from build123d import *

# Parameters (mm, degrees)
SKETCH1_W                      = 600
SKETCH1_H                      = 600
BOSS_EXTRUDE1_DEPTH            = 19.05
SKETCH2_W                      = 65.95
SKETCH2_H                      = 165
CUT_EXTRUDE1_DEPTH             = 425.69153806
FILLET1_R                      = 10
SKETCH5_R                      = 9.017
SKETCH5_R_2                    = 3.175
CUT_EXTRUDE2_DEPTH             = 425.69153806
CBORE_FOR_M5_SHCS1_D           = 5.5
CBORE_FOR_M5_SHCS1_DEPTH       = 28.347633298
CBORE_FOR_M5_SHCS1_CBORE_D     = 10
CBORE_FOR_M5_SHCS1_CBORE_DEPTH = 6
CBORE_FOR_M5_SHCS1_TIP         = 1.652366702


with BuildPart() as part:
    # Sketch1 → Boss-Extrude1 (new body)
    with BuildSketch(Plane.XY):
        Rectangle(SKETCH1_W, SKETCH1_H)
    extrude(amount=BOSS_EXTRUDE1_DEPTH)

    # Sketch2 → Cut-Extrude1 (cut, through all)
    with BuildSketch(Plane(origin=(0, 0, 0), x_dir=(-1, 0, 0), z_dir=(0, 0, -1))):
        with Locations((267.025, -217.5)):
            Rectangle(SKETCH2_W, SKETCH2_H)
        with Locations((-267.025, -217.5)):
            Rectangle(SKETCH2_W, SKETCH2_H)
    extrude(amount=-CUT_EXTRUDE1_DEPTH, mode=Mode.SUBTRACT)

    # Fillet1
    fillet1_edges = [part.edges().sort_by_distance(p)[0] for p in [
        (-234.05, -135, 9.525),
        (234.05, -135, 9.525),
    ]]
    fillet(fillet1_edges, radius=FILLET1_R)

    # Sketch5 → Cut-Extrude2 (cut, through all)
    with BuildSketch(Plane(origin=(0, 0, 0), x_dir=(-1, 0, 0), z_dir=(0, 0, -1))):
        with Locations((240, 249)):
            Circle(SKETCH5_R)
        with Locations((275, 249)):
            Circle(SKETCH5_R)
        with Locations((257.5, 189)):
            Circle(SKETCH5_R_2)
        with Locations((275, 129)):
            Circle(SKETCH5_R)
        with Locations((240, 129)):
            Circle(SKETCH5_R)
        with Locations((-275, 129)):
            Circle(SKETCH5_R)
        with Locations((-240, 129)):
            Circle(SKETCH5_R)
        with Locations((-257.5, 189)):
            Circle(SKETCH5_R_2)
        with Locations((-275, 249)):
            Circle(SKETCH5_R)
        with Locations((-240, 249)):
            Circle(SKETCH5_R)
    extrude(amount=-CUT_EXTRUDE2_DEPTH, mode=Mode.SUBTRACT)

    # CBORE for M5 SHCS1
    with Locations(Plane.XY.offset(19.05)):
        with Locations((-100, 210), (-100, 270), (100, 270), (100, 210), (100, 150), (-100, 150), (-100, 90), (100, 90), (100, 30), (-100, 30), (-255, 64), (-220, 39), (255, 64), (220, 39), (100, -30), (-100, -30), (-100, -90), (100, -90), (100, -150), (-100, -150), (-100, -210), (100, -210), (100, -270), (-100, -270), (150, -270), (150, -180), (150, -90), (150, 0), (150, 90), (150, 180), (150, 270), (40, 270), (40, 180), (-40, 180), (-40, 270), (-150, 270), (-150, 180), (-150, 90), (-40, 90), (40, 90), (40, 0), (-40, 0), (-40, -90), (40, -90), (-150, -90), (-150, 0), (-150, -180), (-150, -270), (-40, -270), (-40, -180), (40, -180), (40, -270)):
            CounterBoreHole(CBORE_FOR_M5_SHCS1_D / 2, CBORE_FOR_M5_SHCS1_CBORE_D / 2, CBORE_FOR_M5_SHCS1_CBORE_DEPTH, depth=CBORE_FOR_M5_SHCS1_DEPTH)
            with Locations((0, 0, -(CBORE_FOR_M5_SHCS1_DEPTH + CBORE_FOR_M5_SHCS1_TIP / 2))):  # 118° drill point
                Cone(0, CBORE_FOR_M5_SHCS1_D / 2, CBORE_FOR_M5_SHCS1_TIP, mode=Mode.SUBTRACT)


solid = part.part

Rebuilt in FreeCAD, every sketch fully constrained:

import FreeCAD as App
import Part
import Sketcher
from FreeCAD import Vector


def edges_at(feature, points):
    """Names of the edges that pass closest to the given points."""
    edges = feature.Shape.Edges
    near = lambda p: min(range(len(edges)), key=lambda i: edges[i].distToShape(Part.Vertex(*p))[0])
    return sorted({f"Edge{near(p) + 1}" for p in points})


def add_polygon(sketch, points):
    """Adds a closed chain of lines whose ends are joined by coincident constraints."""
    first, n = sketch.GeometryCount, len(points)
    for a, b in zip(points, points[1:] + points[:1]):
        sketch.addGeometry(Part.LineSegment(App.Vector(*a, 0), App.Vector(*b, 0)), False)
    for i in range(n):
        sketch.addConstraint(Sketcher.Constraint("Coincident", first + i, 2, first + (i + 1) % n, 1))

doc = App.newDocument("Part")
params = doc.addObject("Spreadsheet::Sheet", "Params")
for row, (alias, value) in enumerate([
    ("sketch1_width", "600 mm"),
    ("pad1_length", "19.05 mm"),
    ("sketch2_height", "165 mm"),
    ("sketch2_width", "65.95 mm"),
    ("fillet_radius", "10 mm"),
    ("sketch3_diameter", "6.35 mm"),
    ("sketch4_diameter", "5.5 mm"),
    ("hole_diameter", "5.5 mm"),
    ("hole_depth", "28.347633 mm"),
    ("hole_cbore_diameter", "10 mm"),
    ("hole_cbore_depth", "6 mm"),
], start=1):
    params.set(f"A{row}", alias)
    params.set(f"B{row}", "=" + value)
    params.setAlias(f"B{row}", alias)

body = doc.addObject("PartDesign::Body", "Body")

# Sketch on XY plane
sketch1 = body.newObject("Sketcher::SketchObject", "Sketch")
sketch1.AttachmentSupport = (doc.getObject("XY_Plane"), [""])
sketch1.MapMode = "FlatFace"
add_polygon(sketch1, [(-300, 300), (-300, -300), (300, -300), (300, 300)])  # lines 0-3
sketch1.addConstraint(Sketcher.Constraint("Vertical", 0))
sketch1.addConstraint(Sketcher.Constraint("Horizontal", 1))
sketch1.addConstraint(Sketcher.Constraint("Vertical", 2))
sketch1.addConstraint(Sketcher.Constraint("Horizontal", 3))
sketch1.addConstraint(Sketcher.Constraint("Symmetric", 0, 2, 2, 2, -1, 1))
sketch1.addConstraint(Sketcher.Constraint("Equal", 3, 0))
sketch1.addConstraint(Sketcher.Constraint("DistanceX", 1, 1, 1, 2, 600.0))
sketch1.setExpression("Constraints[10]", "Params.sketch1_width")
pad1 = body.newObject("PartDesign::Pad", "Pad")
pad1.Profile = sketch1
pad1.setExpression("Length", "Params.pad1_length")

# Sketch on XY plane
sketch2 = body.newObject("Sketcher::SketchObject", "Sketch001")
sketch2.AttachmentSupport = (doc.getObject("XY_Plane"), [""])
sketch2.MapMode = "FlatFace"
add_polygon(sketch2, [(-234, -135), (-234, -300), (-300, -300), (-300, -135)])  # lines 0-3
add_polygon(sketch2, [(300, -135), (300, -300), (234, -300), (234, -135)])  # lines 4-7
sketch2.addConstraint(Sketcher.Constraint("Vertical", 0))
sketch2.addConstraint(Sketcher.Constraint("Horizontal", 1))
sketch2.addConstraint(Sketcher.Constraint("Vertical", 2))
sketch2.addConstraint(Sketcher.Constraint("Horizontal", 3))
sketch2.addConstraint(Sketcher.Constraint("Vertical", 4))
sketch2.addConstraint(Sketcher.Constraint("Horizontal", 5))
sketch2.addConstraint(Sketcher.Constraint("Vertical", 6))
sketch2.addConstraint(Sketcher.Constraint("Horizontal", 7))
sketch2.addConstraint(Sketcher.Constraint("Symmetric", 1, 2, 4, 2, -2))
sketch2.addConstraint(Sketcher.Constraint("Symmetric", 3, 2, 6, 2, -2))
sketch2.addConstraint(Sketcher.Constraint("DistanceY", 0, 2, 0, 1, 165.0))
sketch2.addConstraint(Sketcher.Constraint("DistanceY", 0, 2, -1, 1, 300.0))
sketch2.addConstraint(Sketcher.Constraint("DistanceX", 1, 2, -1, 1, 300.0))
sketch2.addConstraint(Sketcher.Constraint("DistanceX", 1, 2, 1, 1, 65.95))
sketch2.setExpression("Constraints[18]", "Params.sketch2_height")
sketch2.setExpression("Constraints[21]", "Params.sketch2_width")
pocket1 = body.newObject("PartDesign::Pocket", "Pocket")
pocket1.Profile = sketch2
pocket1.Type = "ThroughAll"
pocket1.Reversed = True
doc.recompute()

fillet = body.newObject("PartDesign::Fillet", "Fillet")
fillet.Base = (pocket1, edges_at(pocket1, [(-234.05, -135, 9.525), (234.05, -135, 9.525)]))
fillet.setExpression("Radius", "Params.fillet_radius")

# Sketch on XY plane
sketch3 = body.newObject("Sketcher::SketchObject", "Sketch002")
sketch3.AttachmentSupport = (doc.getObject("XY_Plane"), [""])
sketch3.MapMode = "FlatFace"
sketch3.addGeometry(Part.Circle(Vector(-240, 249, 0), Vector(0, 0, 1), 9), False)
sketch3.addGeometry(Part.Circle(Vector(-275, 249, 0), Vector(0, 0, 1), 9), False)
sketch3.addGeometry(Part.Circle(Vector(-257.5, 189, 0), Vector(0, 0, 1), 3.2), False)
sketch3.addGeometry(Part.Circle(Vector(-275, 129, 0), Vector(0, 0, 1), 9), False)
sketch3.addGeometry(Part.Circle(Vector(-240, 129, 0), Vector(0, 0, 1), 9), False)
sketch3.addGeometry(Part.Circle(Vector(275, 129, 0), Vector(0, 0, 1), 9), False)
sketch3.addGeometry(Part.Circle(Vector(240, 129, 0), Vector(0, 0, 1), 9), False)
sketch3.addGeometry(Part.Circle(Vector(257.5, 189, 0), Vector(0, 0, 1), 3.2), False)
sketch3.addGeometry(Part.Circle(Vector(275, 249, 0), Vector(0, 0, 1), 9), False)
sketch3.addGeometry(Part.Circle(Vector(240, 249, 0), Vector(0, 0, 1), 9), False)
sketch3.addConstraint(Sketcher.Constraint("Equal", 0, 1))
sketch3.addConstraint(Sketcher.Constraint("Equal", 1, 3))
sketch3.addConstraint(Sketcher.Constraint("Equal", 3, 4))
sketch3.addConstraint(Sketcher.Constraint("Equal", 4, 5))
sketch3.addConstraint(Sketcher.Constraint("Equal", 5, 6))
sketch3.addConstraint(Sketcher.Constraint("Equal", 2, 7))
sketch3.addConstraint(Sketcher.Constraint("Equal", 6, 8))
sketch3.addConstraint(Sketcher.Constraint("Equal", 8, 9))
sketch3.addConstraint(Sketcher.Constraint("Symmetric", 3, 3, 5, 3, -2))
sketch3.addConstraint(Sketcher.Constraint("Symmetric", 4, 3, 6, 3, -2))
sketch3.addConstraint(Sketcher.Constraint("Symmetric", 2, 3, 7, 3, -2))
sketch3.addConstraint(Sketcher.Constraint("Symmetric", 1, 3, 8, 3, -2))
sketch3.addConstraint(Sketcher.Constraint("Symmetric", 0, 3, 9, 3, -2))
sketch3.addConstraint(Sketcher.Constraint("Horizontal", 0, 3, 1, 3))
sketch3.addConstraint(Sketcher.Constraint("Horizontal", 3, 3, 4, 3))
sketch3.addConstraint(Sketcher.Constraint("Vertical", 1, 3, 3, 3))
sketch3.addConstraint(Sketcher.Constraint("Vertical", 0, 3, 4, 3))
sketch3.addConstraint(Sketcher.Constraint("Diameter", 2, 6.35))
sketch3.addConstraint(Sketcher.Constraint("Diameter", 0, 18.034))
sketch3.addConstraint(Sketcher.Constraint("DistanceX", 0, 3, -1, 1, 240.0))
sketch3.addConstraint(Sketcher.Constraint("DistanceY", -1, 1, 0, 3, 249.0))
sketch3.addConstraint(Sketcher.Constraint("DistanceX", 1, 3, -1, 1, 275.0))
sketch3.addConstraint(Sketcher.Constraint("DistanceY", -1, 1, 2, 3, 189.0))
sketch3.addConstraint(Sketcher.Constraint("DistanceY", -1, 1, 3, 3, 129.0))
sketch3.addConstraint(Sketcher.Constraint("DistanceX", 2, 3, 7, 3, 515.0))
sketch3.setExpression("Constraints[17]", "Params.sketch3_diameter")
pocket2 = body.newObject("PartDesign::Pocket", "Pocket001")
pocket2.Profile = sketch3
pocket2.Type = "ThroughAll"
pocket2.Reversed = True

# Sketch on XY plane
sketch4 = body.newObject("Sketcher::SketchObject", "Sketch003")
sketch4.AttachmentSupport = (doc.getObject("XY_Plane"), [""])
sketch4.MapMode = "FlatFace"
sketch4.AttachmentOffset = App.Placement(Vector(0, 0, 19.05), App.Rotation())
sketch4.addGeometry(Part.Circle(Vector(-100, 210, 0), Vector(0, 0, 1), 2.8), False)
sketch4.addGeometry(Part.Circle(Vector(-100, 270, 0), Vector(0, 0, 1), 2.8), False)
sketch4.addGeometry(Part.Circle(Vector(100, 270, 0), Vector(0, 0, 1), 2.8), False)
sketch4.addGeometry(Part.Circle(Vector(100, 210, 0), Vector(0, 0, 1), 2.8), False)
sketch4.addGeometry(Part.Circle(Vector(100, 150, 0), Vector(0, 0, 1), 2.8), False)
sketch4.addGeometry(Part.Circle(Vector(-100, 150, 0), Vector(0, 0, 1), 2.8), False)
sketch4.addGeometry(Part.Circle(Vector(-100, 90, 0), Vector(0, 0, 1), 2.8), False)
sketch4.addGeometry(Part.Circle(Vector(100, 90, 0), Vector(0, 0, 1), 2.8), False)
sketch4.addGeometry(Part.Circle(Vector(100, 30, 0), Vector(0, 0, 1), 2.8), False)
sketch4.addGeometry(Part.Circle(Vector(-100, 30, 0), Vector(0, 0, 1), 2.8), False)
sketch4.addGeometry(Part.Circle(Vector(-255, 64, 0), Vector(0, 0, 1), 2.8), False)
sketch4.addGeometry(Part.Circle(Vector(-220, 39, 0), Vector(0, 0, 1), 2.8), False)
sketch4.addGeometry(Part.Circle(Vector(255, 64, 0), Vector(0, 0, 1), 2.8), False)
sketch4.addGeometry(Part.Circle(Vector(220, 39, 0), Vector(0, 0, 1), 2.8), False)
sketch4.addGeometry(Part.Circle(Vector(100, -30, 0), Vector(0, 0, 1), 2.8), False)
sketch4.addGeometry(Part.Circle(Vector(-100, -30, 0), Vector(0, 0, 1), 2.8), False)
sketch4.addGeometry(Part.Circle(Vector(-100, -90, 0), Vector(0, 0, 1), 2.8), False)
sketch4.addGeometry(Part.Circle(Vector(100, -90, 0), Vector(0, 0, 1), 2.8), False)
sketch4.addGeometry(Part.Circle(Vector(100, -150, 0), Vector(0, 0, 1), 2.8), False)
sketch4.addGeometry(Part.Circle(Vector(-100, -150, 0), Vector(0, 0, 1), 2.8), False)
sketch4.addGeometry(Part.Circle(Vector(-100, -210, 0), Vector(0, 0, 1), 2.8), False)
sketch4.addGeometry(Part.Circle(Vector(100, -210, 0), Vector(0, 0, 1), 2.8), False)
sketch4.addGeometry(Part.Circle(Vector(100, -270, 0), Vector(0, 0, 1), 2.8), False)
sketch4.addGeometry(Part.Circle(Vector(-100, -270, 0), Vector(0, 0, 1), 2.8), False)
sketch4.addGeometry(Part.Circle(Vector(150, -270, 0), Vector(0, 0, 1), 2.8), False)
sketch4.addGeometry(Part.Circle(Vector(150, -180, 0), Vector(0, 0, 1), 2.8), False)
sketch4.addGeometry(Part.Circle(Vector(150, -90, 0), Vector(0, 0, 1), 2.8), False)
sketch4.addGeometry(Part.Circle(Vector(150, 0, 0), Vector(0, 0, 1), 2.8), False)
sketch4.addGeometry(Part.Circle(Vector(150, 90, 0), Vector(0, 0, 1), 2.8), False)
sketch4.addGeometry(Part.Circle(Vector(150, 180, 0), Vector(0, 0, 1), 2.8), False)
sketch4.addGeometry(Part.Circle(Vector(150, 270, 0), Vector(0, 0, 1), 2.8), False)
sketch4.addGeometry(Part.Circle(Vector(40, 270, 0), Vector(0, 0, 1), 2.8), False)
sketch4.addGeometry(Part.Circle(Vector(40, 180, 0), Vector(0, 0, 1), 2.8), False)
sketch4.addGeometry(Part.Circle(Vector(-40, 180, 0), Vector(0, 0, 1), 2.8), False)
sketch4.addGeometry(Part.Circle(Vector(-40, 270, 0), Vector(0, 0, 1), 2.8), False)
sketch4.addGeometry(Part.Circle(Vector(-150, 270, 0), Vector(0, 0, 1), 2.8), False)
sketch4.addGeometry(Part.Circle(Vector(-150, 180, 0), Vector(0, 0, 1), 2.8), False)
sketch4.addGeometry(Part.Circle(Vector(-150, 90, 0), Vector(0, 0, 1), 2.8), False)
sketch4.addGeometry(Part.Circle(Vector(-40, 90, 0), Vector(0, 0, 1), 2.8), False)
sketch4.addGeometry(Part.Circle(Vector(40, 90, 0), Vector(0, 0, 1), 2.8), False)
sketch4.addGeometry(Part.Circle(Vector(40, 0, 0), Vector(0, 0, 1), 2.8), False)
sketch4.addGeometry(Part.Circle(Vector(-40, 0, 0), Vector(0, 0, 1), 2.8), False)
sketch4.addGeometry(Part.Circle(Vector(-40, -90, 0), Vector(0, 0, 1), 2.8), False)
sketch4.addGeometry(Part.Circle(Vector(40, -90, 0), Vector(0, 0, 1), 2.8), False)
sketch4.addGeometry(Part.Circle(Vector(-150, -90, 0), Vector(0, 0, 1), 2.8), False)
sketch4.addGeometry(Part.Circle(Vector(-150, 0, 0), Vector(0, 0, 1), 2.8), False)
sketch4.addGeometry(Part.Circle(Vector(-150, -180, 0), Vector(0, 0, 1), 2.8), False)
sketch4.addGeometry(Part.Circle(Vector(-150, -270, 0), Vector(0, 0, 1), 2.8), False)
sketch4.addGeometry(Part.Circle(Vector(-40, -270, 0), Vector(0, 0, 1), 2.8), False)
sketch4.addGeometry(Part.Circle(Vector(-40, -180, 0), Vector(0, 0, 1), 2.8), False)
sketch4.addGeometry(Part.Circle(Vector(40, -180, 0), Vector(0, 0, 1), 2.8), False)
sketch4.addGeometry(Part.Circle(Vector(40, -270, 0), Vector(0, 0, 1), 2.8), False)
sketch4.addConstraint(Sketcher.Constraint("Equal", 0, 1))
sketch4.addConstraint(Sketcher.Constraint("Equal", 1, 2))
sketch4.addConstraint(Sketcher.Constraint("Equal", 2, 3))
sketch4.addConstraint(Sketcher.Constraint("Equal", 3, 4))
sketch4.addConstraint(Sketcher.Constraint("Equal", 4, 5))
sketch4.addConstraint(Sketcher.Constraint("Equal", 5, 6))
sketch4.addConstraint(Sketcher.Constraint("Equal", 6, 7))
sketch4.addConstraint(Sketcher.Constraint("Equal", 7, 8))
sketch4.addConstraint(Sketcher.Constraint("Equal", 8, 9))
sketch4.addConstraint(Sketcher.Constraint("Equal", 9, 10))
sketch4.addConstraint(Sketcher.Constraint("Equal", 10, 11))
sketch4.addConstraint(Sketcher.Constraint("Equal", 11, 12))
sketch4.addConstraint(Sketcher.Constraint("Equal", 12, 13))
sketch4.addConstraint(Sketcher.Constraint("Equal", 13, 14))
sketch4.addConstraint(Sketcher.Constraint("Equal", 14, 15))
sketch4.addConstraint(Sketcher.Constraint("Equal", 15, 16))
sketch4.addConstraint(Sketcher.Constraint("Equal", 16, 17))
sketch4.addConstraint(Sketcher.Constraint("Equal", 17, 18))
sketch4.addConstraint(Sketcher.Constraint("Equal", 18, 19))
sketch4.addConstraint(Sketcher.Constraint("Equal", 19, 20))
sketch4.addConstraint(Sketcher.Constraint("Equal", 20, 21))
sketch4.addConstraint(Sketcher.Constraint("Equal", 21, 22))
sketch4.addConstraint(Sketcher.Constraint("Equal", 22, 23))
sketch4.addConstraint(Sketcher.Constraint("Equal", 23, 24))
sketch4.addConstraint(Sketcher.Constraint("Equal", 24, 25))
sketch4.addConstraint(Sketcher.Constraint("Equal", 25, 26))
sketch4.addConstraint(Sketcher.Constraint("Equal", 26, 27))
sketch4.addConstraint(Sketcher.Constraint("Equal", 27, 28))
sketch4.addConstraint(Sketcher.Constraint("Equal", 28, 29))
sketch4.addConstraint(Sketcher.Constraint("Equal", 29, 30))
sketch4.addConstraint(Sketcher.Constraint("Equal", 30, 31))
sketch4.addConstraint(Sketcher.Constraint("Equal", 31, 32))
sketch4.addConstraint(Sketcher.Constraint("Equal", 32, 33))
sketch4.addConstraint(Sketcher.Constraint("Equal", 33, 34))
sketch4.addConstraint(Sketcher.Constraint("Equal", 34, 35))
sketch4.addConstraint(Sketcher.Constraint("Equal", 35, 36))
sketch4.addConstraint(Sketcher.Constraint("Equal", 36, 37))
sketch4.addConstraint(Sketcher.Constraint("Equal", 37, 38))
sketch4.addConstraint(Sketcher.Constraint("Equal", 38, 39))
sketch4.addConstraint(Sketcher.Constraint("Equal", 39, 40))
sketch4.addConstraint(Sketcher.Constraint("Equal", 40, 41))
sketch4.addConstraint(Sketcher.Constraint("Equal", 41, 42))
sketch4.addConstraint(Sketcher.Constraint("Equal", 42, 43))
sketch4.addConstraint(Sketcher.Constraint("Equal", 43, 44))
sketch4.addConstraint(Sketcher.Constraint("Equal", 44, 45))
sketch4.addConstraint(Sketcher.Constraint("Equal", 45, 46))
sketch4.addConstraint(Sketcher.Constraint("Equal", 46, 47))
sketch4.addConstraint(Sketcher.Constraint("Equal", 47, 48))
sketch4.addConstraint(Sketcher.Constraint("Equal", 48, 49))
sketch4.addConstraint(Sketcher.Constraint("Equal", 49, 50))
sketch4.addConstraint(Sketcher.Constraint("Equal", 50, 51))
sketch4.addConstraint(Sketcher.Constraint("Symmetric", 9, 3, 14, 3, -1, 1))
sketch4.addConstraint(Sketcher.Constraint("Symmetric", 8, 3, 15, 3, -1, 1))
sketch4.addConstraint(Sketcher.Constraint("Symmetric", 7, 3, 16, 3, -1, 1))
sketch4.addConstraint(Sketcher.Constraint("Symmetric", 6, 3, 17, 3, -1, 1))
sketch4.addConstraint(Sketcher.Constraint("Symmetric", 5, 3, 18, 3, -1, 1))
sketch4.addConstraint(Sketcher.Constraint("Symmetric", 4, 3, 19, 3, -1, 1))
sketch4.addConstraint(Sketcher.Constraint("Symmetric", 3, 3, 20, 3, -1, 1))
sketch4.addConstraint(Sketcher.Constraint("Symmetric", 0, 3, 21, 3, -1, 1))
sketch4.addConstraint(Sketcher.Constraint("Symmetric", 1, 3, 22, 3, -1, 1))
sketch4.addConstraint(Sketcher.Constraint("Symmetric", 2, 3, 23, 3, -1, 1))
sketch4.addConstraint(Sketcher.Constraint("Symmetric", 24, 3, 35, 3, -1, 1))
sketch4.addConstraint(Sketcher.Constraint("Symmetric", 25, 3, 36, 3, -1, 1))
sketch4.addConstraint(Sketcher.Constraint("Symmetric", 26, 3, 37, 3, -1, 1))
sketch4.addConstraint(Sketcher.Constraint("Symmetric", 40, 3, 41, 3, -1, 1))
sketch4.addConstraint(Sketcher.Constraint("Symmetric", 39, 3, 42, 3, -1, 1))
sketch4.addConstraint(Sketcher.Constraint("Symmetric", 38, 3, 43, 3, -1, 1))
sketch4.addConstraint(Sketcher.Constraint("Symmetric", 28, 3, 44, 3, -1, 1))
sketch4.addConstraint(Sketcher.Constraint("Symmetric", 27, 3, 45, 3, -1, 1))
sketch4.addConstraint(Sketcher.Constraint("Symmetric", 29, 3, 46, 3, -1, 1))
sketch4.addConstraint(Sketcher.Constraint("Symmetric", 30, 3, 47, 3, -1, 1))
sketch4.addConstraint(Sketcher.Constraint("Symmetric", 31, 3, 48, 3, -1, 1))
sketch4.addConstraint(Sketcher.Constraint("Symmetric", 32, 3, 49, 3, -1, 1))
sketch4.addConstraint(Sketcher.Constraint("Symmetric", 33, 3, 50, 3, -1, 1))
sketch4.addConstraint(Sketcher.Constraint("Symmetric", 34, 3, 51, 3, -1, 1))
sketch4.addConstraint(Sketcher.Constraint("Symmetric", 1, 3, 2, 3, -2))
sketch4.addConstraint(Sketcher.Constraint("Symmetric", 0, 3, 3, 3, -2))
sketch4.addConstraint(Sketcher.Constraint("Symmetric", 4, 3, 5, 3, -2))
sketch4.addConstraint(Sketcher.Constraint("Symmetric", 6, 3, 7, 3, -2))
sketch4.addConstraint(Sketcher.Constraint("Symmetric", 8, 3, 9, 3, -2))
sketch4.addConstraint(Sketcher.Constraint("Symmetric", 10, 3, 12, 3, -2))
sketch4.addConstraint(Sketcher.Constraint("Symmetric", 11, 3, 13, 3, -2))
sketch4.addConstraint(Sketcher.Constraint("Symmetric", 32, 3, 33, 3, -2))
sketch4.addConstraint(Sketcher.Constraint("Symmetric", 31, 3, 34, 3, -2))
sketch4.addConstraint(Sketcher.Constraint("Symmetric", 30, 3, 35, 3, -2))
sketch4.addConstraint(Sketcher.Constraint("Symmetric", 29, 3, 36, 3, -2))
sketch4.addConstraint(Sketcher.Constraint("Symmetric", 28, 3, 37, 3, -2))
sketch4.addConstraint(Sketcher.Constraint("Symmetric", 38, 3, 39, 3, -2))
sketch4.addConstraint(Sketcher.Constraint("PointOnObject", 27, 3, -1))
sketch4.addConstraint(Sketcher.Constraint("PointOnObject", 40, 3, -1))
sketch4.addConstraint(Sketcher.Constraint("Horizontal", 23, 3, 24, 3))
sketch4.addConstraint(Sketcher.Constraint("Horizontal", 17, 3, 26, 3))
sketch4.addConstraint(Sketcher.Constraint("Horizontal", 30, 3, 31, 3))
sketch4.addConstraint(Sketcher.Constraint("Horizontal", 29, 3, 32, 3))
sketch4.addConstraint(Sketcher.Constraint("Horizontal", 37, 3, 38, 3))
sketch4.addConstraint(Sketcher.Constraint("Vertical", 0, 3, 1, 3))
sketch4.addConstraint(Sketcher.Constraint("Vertical", 3, 3, 4, 3))
sketch4.addConstraint(Sketcher.Constraint("Vertical", 5, 3, 6, 3))
sketch4.addConstraint(Sketcher.Constraint("Vertical", 7, 3, 8, 3))
sketch4.addConstraint(Sketcher.Constraint("Vertical", 24, 3, 25, 3))
sketch4.addConstraint(Sketcher.Constraint("Vertical", 25, 3, 26, 3))
sketch4.addConstraint(Sketcher.Constraint("Vertical", 26, 3, 27, 3))
sketch4.addConstraint(Sketcher.Constraint("Vertical", 31, 3, 32, 3))
sketch4.addConstraint(Sketcher.Constraint("Vertical", 34, 3, 38, 3))
sketch4.addConstraint(Sketcher.Constraint("Vertical", 39, 3, 40, 3))
sketch4.addConstraint(Sketcher.Constraint("Diameter", 0, 5.5))
sketch4.addConstraint(Sketcher.Constraint("DistanceX", 0, 3, -1, 1, 100.0))
sketch4.addConstraint(Sketcher.Constraint("DistanceY", -1, 1, 0, 3, 210.0))
sketch4.addConstraint(Sketcher.Constraint("DistanceY", -1, 1, 1, 3, 270.0))
sketch4.addConstraint(Sketcher.Constraint("DistanceY", -1, 1, 4, 3, 150.0))
sketch4.addConstraint(Sketcher.Constraint("DistanceY", -1, 1, 6, 3, 90.0))
sketch4.addConstraint(Sketcher.Constraint("DistanceY", -1, 1, 8, 3, 30.0))
sketch4.addConstraint(Sketcher.Constraint("DistanceX", 10, 3, -1, 1, 255.0))
sketch4.addConstraint(Sketcher.Constraint("DistanceY", -1, 1, 10, 3, 64.0))
sketch4.addConstraint(Sketcher.Constraint("DistanceX", 11, 3, -1, 1, 220.0))
sketch4.addConstraint(Sketcher.Constraint("DistanceY", -1, 1, 11, 3, 39.0))
sketch4.addConstraint(Sketcher.Constraint("DistanceX", -1, 1, 24, 3, 150.0))
sketch4.addConstraint(Sketcher.Constraint("DistanceY", 25, 3, -1, 1, 180.0))
sketch4.addConstraint(Sketcher.Constraint("DistanceX", -1, 1, 31, 3, 40.0))
sketch4.setExpression("Constraints[105]", "Params.sketch4_diameter")
doc.recompute()
hole = body.newObject("PartDesign::Hole", "Hole")
hole.Profile = sketch4
hole.ThreadType = "None"
hole.setExpression("Diameter", "Params.hole_diameter")
hole.DepthType = "Dimension"
hole.setExpression("Depth", "Params.hole_depth")
hole.DrillPoint = "Angled"
hole.DrillPointAngle = 118
hole.HoleCutType = "Counterbore"
hole.setExpression("HoleCutDiameter", "Params.hole_cbore_diameter")
hole.setExpression("HoleCutDepth", "Params.hole_cbore_depth")

doc.recompute()
